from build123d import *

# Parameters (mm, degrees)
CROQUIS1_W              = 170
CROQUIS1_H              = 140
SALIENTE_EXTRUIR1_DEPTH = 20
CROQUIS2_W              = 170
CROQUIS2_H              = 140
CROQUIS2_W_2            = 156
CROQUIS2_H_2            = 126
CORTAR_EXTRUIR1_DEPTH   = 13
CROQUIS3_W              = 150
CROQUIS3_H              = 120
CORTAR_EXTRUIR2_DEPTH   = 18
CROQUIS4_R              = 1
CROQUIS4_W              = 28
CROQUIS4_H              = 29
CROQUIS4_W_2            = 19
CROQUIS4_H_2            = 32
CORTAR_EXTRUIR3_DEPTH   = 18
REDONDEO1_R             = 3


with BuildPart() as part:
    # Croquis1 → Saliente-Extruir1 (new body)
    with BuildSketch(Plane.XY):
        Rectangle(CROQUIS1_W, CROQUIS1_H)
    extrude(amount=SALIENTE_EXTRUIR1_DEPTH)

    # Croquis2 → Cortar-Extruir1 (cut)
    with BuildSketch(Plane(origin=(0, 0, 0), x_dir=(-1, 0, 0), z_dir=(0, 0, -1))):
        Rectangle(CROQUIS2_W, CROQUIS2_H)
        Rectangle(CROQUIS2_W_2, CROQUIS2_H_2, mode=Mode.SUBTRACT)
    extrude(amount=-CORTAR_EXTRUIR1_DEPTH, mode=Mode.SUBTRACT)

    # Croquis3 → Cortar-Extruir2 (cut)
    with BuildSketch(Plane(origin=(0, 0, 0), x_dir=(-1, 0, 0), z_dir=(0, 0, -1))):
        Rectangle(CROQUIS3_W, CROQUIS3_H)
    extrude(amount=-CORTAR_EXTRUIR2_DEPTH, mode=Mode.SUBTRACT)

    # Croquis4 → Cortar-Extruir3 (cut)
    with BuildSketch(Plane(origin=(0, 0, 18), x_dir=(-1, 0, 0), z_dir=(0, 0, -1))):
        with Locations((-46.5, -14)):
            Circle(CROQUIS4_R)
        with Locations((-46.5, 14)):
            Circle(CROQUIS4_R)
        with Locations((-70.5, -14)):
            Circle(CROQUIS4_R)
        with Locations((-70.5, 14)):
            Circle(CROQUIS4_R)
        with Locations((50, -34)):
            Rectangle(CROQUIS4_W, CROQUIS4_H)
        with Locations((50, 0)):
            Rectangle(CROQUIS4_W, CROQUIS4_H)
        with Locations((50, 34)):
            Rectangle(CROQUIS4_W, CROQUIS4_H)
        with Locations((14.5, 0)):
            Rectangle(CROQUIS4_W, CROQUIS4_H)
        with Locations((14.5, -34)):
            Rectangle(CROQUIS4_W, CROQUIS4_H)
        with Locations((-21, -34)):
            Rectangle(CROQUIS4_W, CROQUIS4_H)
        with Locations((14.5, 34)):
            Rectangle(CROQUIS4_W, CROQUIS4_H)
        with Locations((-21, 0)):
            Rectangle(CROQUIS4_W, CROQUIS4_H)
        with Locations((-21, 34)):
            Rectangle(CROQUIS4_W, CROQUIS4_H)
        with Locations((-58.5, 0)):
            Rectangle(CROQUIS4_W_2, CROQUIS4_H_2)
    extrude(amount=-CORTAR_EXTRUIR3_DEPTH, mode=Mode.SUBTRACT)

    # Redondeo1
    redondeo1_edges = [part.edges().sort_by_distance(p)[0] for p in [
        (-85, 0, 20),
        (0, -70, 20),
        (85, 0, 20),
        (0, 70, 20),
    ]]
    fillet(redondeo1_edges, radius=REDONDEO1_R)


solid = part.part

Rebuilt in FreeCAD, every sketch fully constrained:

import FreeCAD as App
import Part
import Sketcher
from FreeCAD import Vector
Q = App.Units.Quantity


def edges_at(feature, points):
    """Names of the edges that pass closest to the given points."""
    edges = feature.Shape.Edges
    near = lambda p: min(range(len(edges)), key=lambda i: edges[i].distToShape(Part.Vertex(*p))[0])
    return sorted({f"Edge{near(p) + 1}" for p in points})

doc = App.newDocument("Part")
body = doc.addObject("PartDesign::Body", "Body")

# Sketch on XY plane
sketch1 = body.newObject("Sketcher::SketchObject", "Sketch")
sketch1.AttachmentSupport = (doc.getObject("XY_Plane"), [""])
sketch1.MapMode = "FlatFace"
sketch1.addGeometry([
    Part.LineSegment(Vector(-85, 70, 0), Vector(-85, -70, 0)),
    Part.LineSegment(Vector(-85, -70, 0), Vector(85, -70, 0)),
    Part.LineSegment(Vector(85, -70, 0), Vector(85, 70, 0)),
    Part.LineSegment(Vector(85, 70, 0), Vector(-85, 70, 0)),
], False)
sketch1.addConstraint([
    Sketcher.Constraint("Coincident", 0, 2, 1, 1),
    Sketcher.Constraint("Coincident", 1, 2, 2, 1),
    Sketcher.Constraint("Coincident", 2, 2, 3, 1),
    Sketcher.Constraint("Coincident", 3, 2, 0, 1),
    Sketcher.Constraint("Vertical", 0),
    Sketcher.Constraint("Horizontal", 1),
    Sketcher.Constraint("Vertical", 2),
    Sketcher.Constraint("Horizontal", 3),
    Sketcher.Constraint("Symmetric", 0, 2, 2, 2, -1, 1),
    Sketcher.Constraint("DistanceX", 1, 1, 1, 2, Q("170 mm")),
    Sketcher.Constraint("DistanceY", 0, 2, 0, 1, Q("140 mm")),
])
pad1 = body.newObject("PartDesign::Pad", "Pad")
pad1.Profile = sketch1
pad1.Length = 20

# Sketch on XY plane
sketch2 = body.newObject("Sketcher::SketchObject", "Sketch001")
sketch2.AttachmentSupport = (doc.getObject("XY_Plane"), [""])
sketch2.MapMode = "FlatFace"
sketch2.addGeometry([
    Part.LineSegment(Vector(85, 70, 0), Vector(85, -70, 0)),  # 0
    Part.LineSegment(Vector(85, -70, 0), Vector(-85, -70, 0)),  # 1
    Part.LineSegment(Vector(-85, -70, 0), Vector(-85, 70, 0)),  # 2
    Part.LineSegment(Vector(-85, 70, 0), Vector(85, 70, 0)),  # 3
    Part.LineSegment(Vector(-78, -63, 0), Vector(78, -63, 0)),  # 4
    Part.LineSegment(Vector(78, -63, 0), Vector(78, 63, 0)),  # 5
    Part.LineSegment(Vector(78, 63, 0), Vector(-78, 63, 0)),  # 6
    Part.LineSegment(Vector(-78, 63, 0), Vector(-78, -63, 0)),  # 7
], False)
sketch2.addConstraint([
    Sketcher.Constraint("Coincident", 0, 2, 1, 1),
    Sketcher.Constraint("Coincident", 1, 2, 2, 1),
    Sketcher.Constraint("Coincident", 2, 2, 3, 1),
    Sketcher.Constraint("Coincident", 3, 2, 0, 1),
    Sketcher.Constraint("Coincident", 4, 2, 5, 1),
    Sketcher.Constraint("Coincident", 5, 2, 6, 1),
    Sketcher.Constraint("Coincident", 6, 2, 7, 1),
    Sketcher.Constraint("Coincident", 7, 2, 4, 1),
    Sketcher.Constraint("Vertical", 0),
    Sketcher.Constraint("Horizontal", 1),
    Sketcher.Constraint("Vertical", 2),
    Sketcher.Constraint("Horizontal", 3),
    Sketcher.Constraint("Horizontal", 4),
    Sketcher.Constraint("Vertical", 5),
    Sketcher.Constraint("Horizontal", 6),
    Sketcher.Constraint("Vertical", 7),
    Sketcher.Constraint("Symmetric", 0, 2, 2, 2, -1, 1),
    Sketcher.Constraint("Symmetric", 4, 2, 6, 2, -1, 1),
    Sketcher.Constraint("DistanceX", 1, 2, 1, 1, Q("170 mm")),
    Sketcher.Constraint("DistanceX", 4, 1, 4, 2, Q("156 mm")),
    Sketcher.Constraint("DistanceY", 0, 2, 0, 1, Q("140 mm")),
    Sketcher.Constraint("DistanceY", 5, 1, 5, 2, Q("126 mm")),
])
pocket1 = body.newObject("PartDesign::Pocket", "Pocket")
pocket1.Profile = sketch2
pocket1.Length = 13
pocket1.Reversed = True

# Sketch on XY plane
sketch3 = body.newObject("Sketcher::SketchObject", "Sketch002")
sketch3.AttachmentSupport = (doc.getObject("XY_Plane"), [""])
sketch3.MapMode = "FlatFace"
sketch3.addGeometry([
    Part.LineSegment(Vector(75, 60, 0), Vector(75, -60, 0)),
    Part.LineSegment(Vector(75, -60, 0), Vector(-75, -60, 0)),
    Part.LineSegment(Vector(-75, -60, 0), Vector(-75, 60, 0)),
    Part.LineSegment(Vector(-75, 60, 0), Vector(75, 60, 0)),
], False)
sketch3.addConstraint([
    Sketcher.Constraint("Coincident", 0, 2, 1, 1),
    Sketcher.Constraint("Coincident", 1, 2, 2, 1),
    Sketcher.Constraint("Coincident", 2, 2, 3, 1),
    Sketcher.Constraint("Coincident", 3, 2, 0, 1),
    Sketcher.Constraint("Vertical", 0),
    Sketcher.Constraint("Horizontal", 1),
    Sketcher.Constraint("Vertical", 2),
    Sketcher.Constraint("Horizontal", 3),
    Sketcher.Constraint("Symmetric", 0, 2, 2, 2, -1, 1),
    Sketcher.Constraint("DistanceX", 1, 2, 1, 1, Q("150 mm")),
    Sketcher.Constraint("DistanceY", 0, 2, 0, 1, Q("120 mm")),
])
pocket2 = body.newObject("PartDesign::Pocket", "Pocket001")
pocket2.Profile = sketch3
pocket2.Length = 18
pocket2.Reversed = True

# Sketch on XY plane
sketch4 = body.newObject("Sketcher::SketchObject", "Sketch003")
sketch4.AttachmentSupport = (doc.getObject("XY_Plane"), [""])
sketch4.MapMode = "FlatFace"
sketch4.AttachmentOffset = App.Placement(Vector(0, 0, 18), App.Rotation())
sketch4.addGeometry([
    Part.Circle(Vector(46.5, -14, 0), Vector(0, 0, 1), 1),  # 0
    Part.Circle(Vector(46.5, 14, 0), Vector(0, 0, 1), 1),  # 1
    Part.Circle(Vector(70.5, -14, 0), Vector(0, 0, 1), 1),  # 2
    Part.Circle(Vector(70.5, 14, 0), Vector(0, 0, 1), 1),  # 3
    Part.LineSegment(Vector(-36, -19.5, 0), Vector(-36, -48.5, 0)),  # 4
    Part.LineSegment(Vector(-36, -48.5, 0), Vector(-64, -48.5, 0)),  # 5
    Part.LineSegment(Vector(-64, -48.5, 0), Vector(-64, -19.5, 0)),  # 6
    Part.LineSegment(Vector(-64, -19.5, 0), Vector(-36, -19.5, 0)),  # 7
    Part.LineSegment(Vector(-36, 14.5, 0), Vector(-36, -14.5, 0)),  # 8
    Part.LineSegment(Vector(-36, -14.5, 0), Vector(-64, -14.5, 0)),  # 9
    Part.LineSegment(Vector(-64, -14.5, 0), Vector(-64, 14.5, 0)),  # 10
    Part.LineSegment(Vector(-64, 14.5, 0), Vector(-36, 14.5, 0)),  # 11
    Part.LineSegment(Vector(-36, 48.5, 0), Vector(-36, 19.5, 0)),  # 12
    Part.LineSegment(Vector(-36, 19.5, 0), Vector(-64, 19.5, 0)),  # 13
    Part.LineSegment(Vector(-64, 19.5, 0), Vector(-64, 48.5, 0)),  # 14
    Part.LineSegment(Vector(-64, 48.5, 0), Vector(-36, 48.5, 0)),  # 15
    Part.LineSegment(Vector(-0.5, 14.5, 0), Vector(-0.5, -14.5, 0)),  # 16
    Part.LineSegment(Vector(-0.5, -14.5, 0), Vector(-28.5, -14.5, 0)),  # 17
    Part.LineSegment(Vector(-28.5, -14.5, 0), Vector(-28.5, 14.5, 0)),  # 18
    Part.LineSegment(Vector(-28.5, 14.5, 0), Vector(-0.5, 14.5, 0)),  # 19
    Part.LineSegment(Vector(-0.5, -19.5, 0), Vector(-0.5, -48.5, 0)),  # 20
    Part.LineSegment(Vector(-0.5, -48.5, 0), Vector(-28.5, -48.5, 0)),  # 21
    Part.LineSegment(Vector(-28.5, -48.5, 0), Vector(-28.5, -19.5, 0)),  # 22
    Part.LineSegment(Vector(-28.5, -19.5, 0), Vector(-0.5, -19.5, 0)),  # 23
    Part.LineSegment(Vector(35, -19.5, 0), Vector(35, -48.5, 0)),  # 24
    Part.LineSegment(Vector(35, -48.5, 0), Vector(7, -48.5, 0)),  # 25
    Part.LineSegment(Vector(7, -48.5, 0), Vector(7, -19.5, 0)),  # 26
    Part.LineSegment(Vector(7, -19.5, 0), Vector(35, -19.5, 0)),  # 27
    Part.LineSegment(Vector(-0.5, 48.5, 0), Vector(-0.5, 19.5, 0)),  # 28
    Part.LineSegment(Vector(-0.5, 19.5, 0), Vector(-28.5, 19.5, 0)),  # 29
    Part.LineSegment(Vector(-28.5, 19.5, 0), Vector(-28.5, 48.5, 0)),  # 30
    Part.LineSegment(Vector(-28.5, 48.5, 0), Vector(-0.5, 48.5, 0)),  # 31
    Part.LineSegment(Vector(35, 14.5, 0), Vector(35, -14.5, 0)),  # 32
    Part.LineSegment(Vector(35, -14.5, 0), Vector(7, -14.5, 0)),  # 33
    Part.LineSegment(Vector(7, -14.5, 0), Vector(7, 14.5, 0)),  # 34
    Part.LineSegment(Vector(7, 14.5, 0), Vector(35, 14.5, 0)),  # 35
    Part.LineSegment(Vector(35, 48.5, 0), Vector(35, 19.5, 0)),  # 36
    Part.LineSegment(Vector(35, 19.5, 0), Vector(7, 19.5, 0)),  # 37
    Part.LineSegment(Vector(7, 19.5, 0), Vector(7, 48.5, 0)),  # 38
    Part.LineSegment(Vector(7, 48.5, 0), Vector(35, 48.5, 0)),  # 39
    Part.LineSegment(Vector(68, 16, 0), Vector(68, -16, 0)),  # 40
    Part.LineSegment(Vector(68, -16, 0), Vector(49, -16, 0)),  # 41
    Part.LineSegment(Vector(49, -16, 0), Vector(49, 16, 0)),  # 42
    Part.LineSegment(Vector(49, 16, 0), Vector(68, 16, 0)),  # 43
], False)
sketch4.addConstraint([
    Sketcher.Constraint("Coincident", 4, 2, 5, 1),
    Sketcher.Constraint("Coincident", 5, 2, 6, 1),
    Sketcher.Constraint("Coincident", 6, 2, 7, 1),
    Sketcher.Constraint("Coincident", 7, 2, 4, 1),
    Sketcher.Constraint("Coincident", 8, 2, 9, 1),
    Sketcher.Constraint("Coincident", 9, 2, 10, 1),
    Sketcher.Constraint("Coincident", 10, 2, 11, 1),
    Sketcher.Constraint("Coincident", 11, 2, 8, 1),
    Sketcher.Constraint("Coincident", 12, 2, 13, 1),
    Sketcher.Constraint("Coincident", 13, 2, 14, 1),
    Sketcher.Constraint("Coincident", 14, 2, 15, 1),
    Sketcher.Constraint("Coincident", 15, 2, 12, 1),
    Sketcher.Constraint("Coincident", 16, 2, 17, 1),
    Sketcher.Constraint("Coincident", 17, 2, 18, 1),
    Sketcher.Constraint("Coincident", 18, 2, 19, 1),
    Sketcher.Constraint("Coincident", 19, 2, 16, 1),
    Sketcher.Constraint("Coincident", 20, 2, 21, 1),
    Sketcher.Constraint("Coincident", 21, 2, 22, 1),
    Sketcher.Constraint("Coincident", 22, 2, 23, 1),
    Sketcher.Constraint("Coincident", 23, 2, 20, 1),
    Sketcher.Constraint("Coincident", 24, 2, 25, 1),
    Sketcher.Constraint("Coincident", 25, 2, 26, 1),
    Sketcher.Constraint("Coincident", 26, 2, 27, 1),
    Sketcher.Constraint("Coincident", 27, 2, 24, 1),
    Sketcher.Constraint("Coincident", 28, 2, 29, 1),
    Sketcher.Constraint("Coincident", 29, 2, 30, 1),
    Sketcher.Constraint("Coincident", 30, 2, 31, 1),
    Sketcher.Constraint("Coincident", 31, 2, 28, 1),
    Sketcher.Constraint("Coincident", 32, 2, 33, 1),
    Sketcher.Constraint("Coincident", 33, 2, 34, 1),
    Sketcher.Constraint("Coincident", 34, 2, 35, 1),
    Sketcher.Constraint("Coincident", 35, 2, 32, 1),
    Sketcher.Constraint("Coincident", 36, 2, 37, 1),
    Sketcher.Constraint("Coincident", 37, 2, 38, 1),
    Sketcher.Constraint("Coincident", 38, 2, 39, 1),
    Sketcher.Constraint("Coincident", 39, 2, 36, 1),
    Sketcher.Constraint("Coincident", 40, 2, 41, 1),
    Sketcher.Constraint("Coincident", 41, 2, 42, 1),
    Sketcher.Constraint("Coincident", 42, 2, 43, 1),
    Sketcher.Constraint("Coincident", 43, 2, 40, 1),
    Sketcher.Constraint("Vertical", 4),
    Sketcher.Constraint("Horizontal", 5),
    Sketcher.Constraint("Vertical", 6),
    Sketcher.Constraint("Horizontal", 7),
    Sketcher.Constraint("Vertical", 8),
    Sketcher.Constraint("Horizontal", 9),
    Sketcher.Constraint("Vertical", 10),
    Sketcher.Constraint("Horizontal", 11),
    Sketcher.Constraint("Vertical", 12),
    Sketcher.Constraint("Horizontal", 13),
    Sketcher.Constraint("Vertical", 14),
    Sketcher.Constraint("Horizontal", 15),
    Sketcher.Constraint("Vertical", 16),
    Sketcher.Constraint("Horizontal", 17),
    Sketcher.Constraint("Vertical", 18),
    Sketcher.Constraint("Horizontal", 19),
    Sketcher.Constraint("Vertical", 20),
    Sketcher.Constraint("Horizontal", 21),
    Sketcher.Constraint("Vertical", 22),
    Sketcher.Constraint("Horizontal", 23),
    Sketcher.Constraint("Vertical", 24),
    Sketcher.Constraint("Horizontal", 25),
    Sketcher.Constraint("Vertical", 26),
    Sketcher.Constraint("Horizontal", 27),
    Sketcher.Constraint("Vertical", 28),
    Sketcher.Constraint("Horizontal", 29),
    Sketcher.Constraint("Vertical", 30),
    Sketcher.Constraint("Horizontal", 31),
    Sketcher.Constraint("Vertical", 32),
    Sketcher.Constraint("Horizontal", 33),
    Sketcher.Constraint("Vertical", 34),
    Sketcher.Constraint("Horizontal", 35),
    Sketcher.Constraint("Vertical", 36),
    Sketcher.Constraint("Horizontal", 37),
    Sketcher.Constraint("Vertical", 38),
    Sketcher.Constraint("Horizontal", 39),
    Sketcher.Constraint("Vertical", 40),
    Sketcher.Constraint("Horizontal", 41),
    Sketcher.Constraint("Vertical", 42),
    Sketcher.Constraint("Horizontal", 43),
    Sketcher.Constraint("Equal", 0, 1),
    Sketcher.Constraint("Equal", 1, 2),
    Sketcher.Constraint("Equal", 2, 3),
    Sketcher.Constraint("Symmetric", 0, 3, 1, 3, -1),
    Sketcher.Constraint("Symmetric", 2, 3, 3, 3, -1),
    Sketcher.Constraint("Symmetric", 7, 2, 12, 2, -1),
    Sketcher.Constraint("Symmetric", 5, 2, 14, 2, -1),
    Sketcher.Constraint("Symmetric", 23, 2, 28, 2, -1),
    Sketcher.Constraint("Symmetric", 21, 2, 30, 2, -1),
    Sketcher.Constraint("Symmetric", 27, 2, 36, 2, -1),
    Sketcher.Constraint("Symmetric", 25, 2, 38, 2, -1),
    Sketcher.Constraint("Horizontal", 0, 3, 2, 3),
    Sketcher.Constraint("Horizontal", 9, 2, 16, 2),
    Sketcher.Constraint("Horizontal", 11, 2, 18, 2),
    Sketcher.Constraint("Horizontal", 5, 2, 20, 2),
    Sketcher.Constraint("Horizontal", 7, 2, 22, 2),
    Sketcher.Constraint("Horizontal", 21, 2, 24, 2),
    Sketcher.Constraint("Horizontal", 23, 2, 26, 2),
    Sketcher.Constraint("Horizontal", 17, 2, 32, 2),
    Sketcher.Constraint("Horizontal", 19, 2, 34, 2),
    Sketcher.Constraint("Vertical", 7, 2, 8, 2),
    Sketcher.Constraint("Vertical", 6, 2, 9, 2),
    Sketcher.Constraint("Vertical", 19, 2, 20, 2),
    Sketcher.Constraint("Vertical", 18, 2, 21, 2),
    Sketcher.Constraint("Vertical", 27, 2, 32, 2),
    Sketcher.Constraint("Vertical", 26, 2, 33, 2),
    Sketcher.Constraint("Equal", 15, 17),
    Sketcher.Constraint("Equal", 23, 25),
    Sketcher.Constraint("Equal", 6, 8),
    Sketcher.Constraint("Diameter", 0, Q("2 mm")),
    Sketcher.Constraint("DistanceX", 5, 2, 5, 1, Q("28 mm")),
    Sketcher.Constraint("DistanceX", 41, 2, 41, 1, Q("19 mm")),
    Sketcher.Constraint("DistanceY", 4, 2, 4, 1, Q("29 mm")),
    Sketcher.Constraint("DistanceY", 40, 2, 40, 1, Q("32 mm")),
    Sketcher.Constraint("DistanceY", 0, 3, -1, 1, Q("14 mm")),
    Sketcher.Constraint("DistanceX", 4, 2, -1, 1, Q("36 mm")),
    Sketcher.Constraint("DistanceX", -1, 1, 24, 2, Q("35 mm")),
    Sketcher.Constraint("DistanceX", -1, 1, 40, 2, Q("68 mm")),
    Sketcher.Constraint("DistanceY", 40, 2, -1, 1, Q("16 mm")),
    Sketcher.Constraint("DistanceX", 0, 3, 2, 3, Q("24 mm")),
    Sketcher.Constraint("DistanceY", 7, 2, 8, 2, Q("5 mm")),
    Sketcher.Constraint("DistanceY", 11, 2, 12, 2, Q("5 mm")),
    Sketcher.Constraint("DistanceX", 16, 2, 0, 3, Q("47 mm")),
    Sketcher.Constraint("DistanceX", -1, 1, 0, 3, Q("46.5 mm")),
])
pocket3 = body.newObject("PartDesign::Pocket", "Pocket002")
pocket3.Profile = sketch4
pocket3.Length = 18
pocket3.Reversed = True
doc.recompute()

fillet = body.newObject("PartDesign::Fillet", "Fillet")
fillet.Base = (pocket3, edges_at(pocket3, [
    (-85, 0, 20),
    (0, -70, 20),
    (85, 0, 20),
    (0, 70, 20),
]))
fillet.Radius = 3

doc.recompute()
